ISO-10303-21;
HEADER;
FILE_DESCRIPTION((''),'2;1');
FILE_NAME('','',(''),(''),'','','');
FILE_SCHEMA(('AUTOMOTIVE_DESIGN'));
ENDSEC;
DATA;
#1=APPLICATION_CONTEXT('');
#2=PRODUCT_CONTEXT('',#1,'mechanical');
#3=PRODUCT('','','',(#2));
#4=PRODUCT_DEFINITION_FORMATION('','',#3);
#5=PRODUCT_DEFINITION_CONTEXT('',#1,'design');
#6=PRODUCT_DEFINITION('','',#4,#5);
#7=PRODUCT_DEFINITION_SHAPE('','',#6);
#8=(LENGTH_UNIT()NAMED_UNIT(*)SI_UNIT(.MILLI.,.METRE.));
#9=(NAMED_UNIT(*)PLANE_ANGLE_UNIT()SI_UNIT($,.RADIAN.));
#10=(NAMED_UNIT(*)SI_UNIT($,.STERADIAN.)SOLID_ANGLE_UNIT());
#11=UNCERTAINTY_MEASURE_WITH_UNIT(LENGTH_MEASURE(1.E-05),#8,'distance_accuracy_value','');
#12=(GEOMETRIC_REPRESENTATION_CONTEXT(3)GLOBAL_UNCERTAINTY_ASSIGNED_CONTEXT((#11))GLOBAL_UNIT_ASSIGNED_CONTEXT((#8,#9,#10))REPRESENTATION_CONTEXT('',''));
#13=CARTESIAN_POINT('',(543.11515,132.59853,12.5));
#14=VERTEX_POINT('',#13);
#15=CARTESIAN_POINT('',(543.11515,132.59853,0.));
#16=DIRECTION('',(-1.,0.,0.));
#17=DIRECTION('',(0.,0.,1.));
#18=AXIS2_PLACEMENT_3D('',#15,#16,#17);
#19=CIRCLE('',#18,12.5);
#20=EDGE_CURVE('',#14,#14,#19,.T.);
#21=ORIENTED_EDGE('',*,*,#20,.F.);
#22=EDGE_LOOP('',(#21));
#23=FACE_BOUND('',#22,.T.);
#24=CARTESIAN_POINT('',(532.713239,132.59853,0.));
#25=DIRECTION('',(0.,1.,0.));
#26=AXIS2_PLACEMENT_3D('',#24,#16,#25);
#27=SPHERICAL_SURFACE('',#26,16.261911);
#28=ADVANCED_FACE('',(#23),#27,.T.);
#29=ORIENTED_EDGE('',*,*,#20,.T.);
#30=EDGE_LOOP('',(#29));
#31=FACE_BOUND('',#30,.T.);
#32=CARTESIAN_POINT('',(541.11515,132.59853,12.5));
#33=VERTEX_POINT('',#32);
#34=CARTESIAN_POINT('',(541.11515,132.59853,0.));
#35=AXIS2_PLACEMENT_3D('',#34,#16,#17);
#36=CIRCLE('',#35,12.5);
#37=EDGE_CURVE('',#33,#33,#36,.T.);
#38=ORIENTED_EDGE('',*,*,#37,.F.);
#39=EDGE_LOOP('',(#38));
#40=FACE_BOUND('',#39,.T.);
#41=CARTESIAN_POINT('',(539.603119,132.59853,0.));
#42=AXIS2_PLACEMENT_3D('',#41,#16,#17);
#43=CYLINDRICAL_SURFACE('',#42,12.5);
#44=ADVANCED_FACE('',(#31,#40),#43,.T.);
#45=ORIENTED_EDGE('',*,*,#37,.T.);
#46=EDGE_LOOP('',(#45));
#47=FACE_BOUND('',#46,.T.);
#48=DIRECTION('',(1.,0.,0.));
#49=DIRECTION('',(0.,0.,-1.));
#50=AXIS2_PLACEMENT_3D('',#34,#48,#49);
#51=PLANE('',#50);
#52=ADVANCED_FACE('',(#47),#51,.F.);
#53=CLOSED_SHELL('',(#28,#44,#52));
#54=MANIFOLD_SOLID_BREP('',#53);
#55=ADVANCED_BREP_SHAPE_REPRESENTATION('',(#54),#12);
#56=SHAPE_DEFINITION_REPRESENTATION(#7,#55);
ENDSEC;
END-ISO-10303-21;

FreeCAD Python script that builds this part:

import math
import FreeCAD as App
import Part
import Sketcher

doc = App.newDocument("Part")
body = doc.addObject("PartDesign::Body", "Body")

# Sketch on XY plane
sketch1 = body.newObject("Sketcher::SketchObject", "Sketch")
sketch1.AttachmentSupport = (doc.getObject("XY_Plane"), [""])
sketch1.MapMode = "FlatFace"
sketch1.addGeometry([
    Part.LineSegment(App.Vector(541.1, 145.1, 0), App.Vector(541.1, 132.6, 0)),
    Part.LineSegment(App.Vector(541.1, 132.6, 0), App.Vector(549, 132.6, 0)),
    Part.ArcOfCircle(Part.Circle(App.Vector(532.7, 132.6, 0), App.Vector(0, 0, 1), 16.3), math.radians(0), math.radians(50)),
    Part.LineSegment(App.Vector(543.1, 145.1, 0), App.Vector(541.1, 145.1, 0)),
], False)
sketch1.addGeometry(Part.LineSegment(App.Vector(532.7, 132.6, 0), App.Vector(549, 132.6, 0)), True)  # axis
sketch1.addConstraint([
    Sketcher.Constraint("Coincident", 0, 2, 1, 1),
    Sketcher.Constraint("Coincident", 1, 2, 2, 1),
    Sketcher.Constraint("Coincident", 2, 2, 3, 1),
    Sketcher.Constraint("Coincident", 3, 2, 0, 1),
    Sketcher.Constraint("Vertical", 0),
    Sketcher.Constraint("Horizontal", 1),
    Sketcher.Constraint("Horizontal", 3),
    Sketcher.Constraint("Horizontal", 4),
    Sketcher.Constraint("Coincident", 4, 1, 2, 3),
    Sketcher.Constraint("Coincident", 4, 2, 1, 2),
    Sketcher.Constraint("DistanceX", 3, 2, 3, 1, 2.0),
    Sketcher.Constraint("DistanceY", 0, 2, 0, 1, 12.5),
    Sketcher.Constraint("DistanceX", 1, 1, 1, 2, 7.86),
    Sketcher.Constraint("DistanceX", -1, 1, 2, 3, 532.713239),
    Sketcher.Constraint("DistanceY", -1, 1, 2, 3, 132.59853),
])
revolution = body.newObject("PartDesign::Revolution", "Revolution")
revolution.Profile = sketch1
revolution.ReferenceAxis = (sketch1, ["Axis0"])
revolution.Angle = 360

doc.recompute()
